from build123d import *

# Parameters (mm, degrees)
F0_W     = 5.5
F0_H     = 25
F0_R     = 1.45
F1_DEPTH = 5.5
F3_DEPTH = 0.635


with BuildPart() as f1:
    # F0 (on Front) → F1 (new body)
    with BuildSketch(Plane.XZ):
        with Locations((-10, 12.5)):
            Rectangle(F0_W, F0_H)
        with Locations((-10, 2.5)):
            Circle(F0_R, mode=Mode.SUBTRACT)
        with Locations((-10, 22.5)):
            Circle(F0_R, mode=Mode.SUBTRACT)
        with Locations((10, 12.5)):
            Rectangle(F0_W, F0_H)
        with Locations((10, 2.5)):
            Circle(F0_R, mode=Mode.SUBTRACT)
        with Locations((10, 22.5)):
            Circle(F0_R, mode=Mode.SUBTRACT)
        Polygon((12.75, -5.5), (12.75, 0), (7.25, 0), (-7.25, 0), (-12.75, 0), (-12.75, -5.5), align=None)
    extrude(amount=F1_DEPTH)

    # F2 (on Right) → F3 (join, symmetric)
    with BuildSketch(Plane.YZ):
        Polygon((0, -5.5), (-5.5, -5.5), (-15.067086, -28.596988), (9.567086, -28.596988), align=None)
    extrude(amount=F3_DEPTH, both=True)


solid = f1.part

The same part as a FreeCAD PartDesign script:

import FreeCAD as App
import Part
import Sketcher
Q = App.Units.Quantity


def add_polygon(sketch, points):
    """Adds a closed chain of lines whose ends are joined by coincident constraints."""
    first, n = sketch.GeometryCount, len(points)
    for a, b in zip(points, points[1:] + points[:1]):
        sketch.addGeometry(Part.LineSegment(App.Vector(*a, 0), App.Vector(*b, 0)), False)
    for i in range(n):
        sketch.addConstraint(Sketcher.Constraint("Coincident", first + i, 2, first + (i + 1) % n, 1))

doc = App.newDocument("Part")
body = doc.addObject("PartDesign::Body", "Body")

# Sketch on XZ plane
sketch1 = body.newObject("Sketcher::SketchObject", "Sketch")
sketch1.AttachmentSupport = (doc.getObject("XZ_Plane"), [""])
sketch1.MapMode = "FlatFace"
add_polygon(sketch1, [(-12.8, 25), (-12.8, -5.5), (12.8, -5.5), (12.8, 25), (7.2, 25), (7.2, 0), (-7.2, 0), (-7.2, 25)])  # lines 0-7
sketch1.addGeometry(Part.Circle(App.Vector(-10, 2.5, 0), App.Vector(0, 0, 1), 1.4), False)  # 8
sketch1.addGeometry(Part.Circle(App.Vector(-10, 22.5, 0), App.Vector(0, 0, 1), 1.4), False)  # 9
sketch1.addGeometry(Part.Circle(App.Vector(10, 22.5, 0), App.Vector(0, 0, 1), 1.4), False)  # 10
sketch1.addGeometry(Part.Circle(App.Vector(10, 2.5, 0), App.Vector(0, 0, 1), 1.4), False)  # 11
sketch1.addConstraint([
    Sketcher.Constraint("Vertical", 0),
    Sketcher.Constraint("Horizontal", 1),
    Sketcher.Constraint("Vertical", 2),
    Sketcher.Constraint("Horizontal", 3),
    Sketcher.Constraint("Vertical", 4),
    Sketcher.Constraint("Horizontal", 5),
    Sketcher.Constraint("Vertical", 6),
    Sketcher.Constraint("Horizontal", 7),
    Sketcher.Constraint("Equal", 8, 9),
    Sketcher.Constraint("Equal", 9, 10),
    Sketcher.Constraint("Equal", 10, 11),
    Sketcher.Constraint("Symmetric", 4, 2, 5, 2, -1, 1),
    Sketcher.Constraint("Symmetric", 9, 3, 10, 3, -2),
    Sketcher.Constraint("Symmetric", 8, 3, 11, 3, -2),
    Sketcher.Constraint("Symmetric", 2, 2, 7, 2, -2),
    Sketcher.Constraint("Vertical", 8, 3, 9, 3),
    Sketcher.Constraint("Diameter", 8, 2.9),
    Sketcher.Constraint("DistanceY", 4, 2, 4, 1, 25.0),
    Sketcher.Constraint("DistanceX", 1, 1, 1, 2, 25.5),
    Sketcher.Constraint("DistanceX", 3, 2, 3, 1, 5.5),
    Sketcher.Constraint("DistanceY", 0, 2, 0, 1, 30.5),
    Sketcher.Constraint("DistanceX", 8, 3, -1, 1, 10.0),
    Sketcher.Constraint("DistanceY", 8, 3, 9, 3, 20.0),
    Sketcher.Constraint("DistanceY", 0, 2, 8, 3, 8.0),
])
pad1 = body.newObject("PartDesign::Pad", "Pad")
pad1.Profile = sketch1
pad1.Length = 5.5

# Sketch on YZ plane
sketch2 = body.newObject("Sketcher::SketchObject", "Sketch001")
sketch2.AttachmentSupport = (doc.getObject("YZ_Plane"), [""])
sketch2.MapMode = "FlatFace"
add_polygon(sketch2, [(0, -6), (-6, -6), (-15, -29), (10, -29)])  # lines 0-3
sketch2.addConstraint([
    Sketcher.Constraint("Horizontal", 0),
    Sketcher.Constraint("Horizontal", 2),
    Sketcher.Constraint("PointOnObject", 3, 2, -2),
    Sketcher.Constraint("Equal", 1, 3),
    Sketcher.Constraint("Distance", 1, 25.0),
    Sketcher.Constraint("DistanceX", 0, 2, 0, 1, 5.5),
    Sketcher.Constraint("Angle", 1, Q("-112.500001 deg")),
    Sketcher.Constraint("DistanceY", 0, 2, -1, 1, 5.5),
])
pad2 = body.newObject("PartDesign::Pad", "Pad001")
pad2.Profile = sketch2
pad2.Length = 1.27
pad2.Midplane = True

doc.recompute()
